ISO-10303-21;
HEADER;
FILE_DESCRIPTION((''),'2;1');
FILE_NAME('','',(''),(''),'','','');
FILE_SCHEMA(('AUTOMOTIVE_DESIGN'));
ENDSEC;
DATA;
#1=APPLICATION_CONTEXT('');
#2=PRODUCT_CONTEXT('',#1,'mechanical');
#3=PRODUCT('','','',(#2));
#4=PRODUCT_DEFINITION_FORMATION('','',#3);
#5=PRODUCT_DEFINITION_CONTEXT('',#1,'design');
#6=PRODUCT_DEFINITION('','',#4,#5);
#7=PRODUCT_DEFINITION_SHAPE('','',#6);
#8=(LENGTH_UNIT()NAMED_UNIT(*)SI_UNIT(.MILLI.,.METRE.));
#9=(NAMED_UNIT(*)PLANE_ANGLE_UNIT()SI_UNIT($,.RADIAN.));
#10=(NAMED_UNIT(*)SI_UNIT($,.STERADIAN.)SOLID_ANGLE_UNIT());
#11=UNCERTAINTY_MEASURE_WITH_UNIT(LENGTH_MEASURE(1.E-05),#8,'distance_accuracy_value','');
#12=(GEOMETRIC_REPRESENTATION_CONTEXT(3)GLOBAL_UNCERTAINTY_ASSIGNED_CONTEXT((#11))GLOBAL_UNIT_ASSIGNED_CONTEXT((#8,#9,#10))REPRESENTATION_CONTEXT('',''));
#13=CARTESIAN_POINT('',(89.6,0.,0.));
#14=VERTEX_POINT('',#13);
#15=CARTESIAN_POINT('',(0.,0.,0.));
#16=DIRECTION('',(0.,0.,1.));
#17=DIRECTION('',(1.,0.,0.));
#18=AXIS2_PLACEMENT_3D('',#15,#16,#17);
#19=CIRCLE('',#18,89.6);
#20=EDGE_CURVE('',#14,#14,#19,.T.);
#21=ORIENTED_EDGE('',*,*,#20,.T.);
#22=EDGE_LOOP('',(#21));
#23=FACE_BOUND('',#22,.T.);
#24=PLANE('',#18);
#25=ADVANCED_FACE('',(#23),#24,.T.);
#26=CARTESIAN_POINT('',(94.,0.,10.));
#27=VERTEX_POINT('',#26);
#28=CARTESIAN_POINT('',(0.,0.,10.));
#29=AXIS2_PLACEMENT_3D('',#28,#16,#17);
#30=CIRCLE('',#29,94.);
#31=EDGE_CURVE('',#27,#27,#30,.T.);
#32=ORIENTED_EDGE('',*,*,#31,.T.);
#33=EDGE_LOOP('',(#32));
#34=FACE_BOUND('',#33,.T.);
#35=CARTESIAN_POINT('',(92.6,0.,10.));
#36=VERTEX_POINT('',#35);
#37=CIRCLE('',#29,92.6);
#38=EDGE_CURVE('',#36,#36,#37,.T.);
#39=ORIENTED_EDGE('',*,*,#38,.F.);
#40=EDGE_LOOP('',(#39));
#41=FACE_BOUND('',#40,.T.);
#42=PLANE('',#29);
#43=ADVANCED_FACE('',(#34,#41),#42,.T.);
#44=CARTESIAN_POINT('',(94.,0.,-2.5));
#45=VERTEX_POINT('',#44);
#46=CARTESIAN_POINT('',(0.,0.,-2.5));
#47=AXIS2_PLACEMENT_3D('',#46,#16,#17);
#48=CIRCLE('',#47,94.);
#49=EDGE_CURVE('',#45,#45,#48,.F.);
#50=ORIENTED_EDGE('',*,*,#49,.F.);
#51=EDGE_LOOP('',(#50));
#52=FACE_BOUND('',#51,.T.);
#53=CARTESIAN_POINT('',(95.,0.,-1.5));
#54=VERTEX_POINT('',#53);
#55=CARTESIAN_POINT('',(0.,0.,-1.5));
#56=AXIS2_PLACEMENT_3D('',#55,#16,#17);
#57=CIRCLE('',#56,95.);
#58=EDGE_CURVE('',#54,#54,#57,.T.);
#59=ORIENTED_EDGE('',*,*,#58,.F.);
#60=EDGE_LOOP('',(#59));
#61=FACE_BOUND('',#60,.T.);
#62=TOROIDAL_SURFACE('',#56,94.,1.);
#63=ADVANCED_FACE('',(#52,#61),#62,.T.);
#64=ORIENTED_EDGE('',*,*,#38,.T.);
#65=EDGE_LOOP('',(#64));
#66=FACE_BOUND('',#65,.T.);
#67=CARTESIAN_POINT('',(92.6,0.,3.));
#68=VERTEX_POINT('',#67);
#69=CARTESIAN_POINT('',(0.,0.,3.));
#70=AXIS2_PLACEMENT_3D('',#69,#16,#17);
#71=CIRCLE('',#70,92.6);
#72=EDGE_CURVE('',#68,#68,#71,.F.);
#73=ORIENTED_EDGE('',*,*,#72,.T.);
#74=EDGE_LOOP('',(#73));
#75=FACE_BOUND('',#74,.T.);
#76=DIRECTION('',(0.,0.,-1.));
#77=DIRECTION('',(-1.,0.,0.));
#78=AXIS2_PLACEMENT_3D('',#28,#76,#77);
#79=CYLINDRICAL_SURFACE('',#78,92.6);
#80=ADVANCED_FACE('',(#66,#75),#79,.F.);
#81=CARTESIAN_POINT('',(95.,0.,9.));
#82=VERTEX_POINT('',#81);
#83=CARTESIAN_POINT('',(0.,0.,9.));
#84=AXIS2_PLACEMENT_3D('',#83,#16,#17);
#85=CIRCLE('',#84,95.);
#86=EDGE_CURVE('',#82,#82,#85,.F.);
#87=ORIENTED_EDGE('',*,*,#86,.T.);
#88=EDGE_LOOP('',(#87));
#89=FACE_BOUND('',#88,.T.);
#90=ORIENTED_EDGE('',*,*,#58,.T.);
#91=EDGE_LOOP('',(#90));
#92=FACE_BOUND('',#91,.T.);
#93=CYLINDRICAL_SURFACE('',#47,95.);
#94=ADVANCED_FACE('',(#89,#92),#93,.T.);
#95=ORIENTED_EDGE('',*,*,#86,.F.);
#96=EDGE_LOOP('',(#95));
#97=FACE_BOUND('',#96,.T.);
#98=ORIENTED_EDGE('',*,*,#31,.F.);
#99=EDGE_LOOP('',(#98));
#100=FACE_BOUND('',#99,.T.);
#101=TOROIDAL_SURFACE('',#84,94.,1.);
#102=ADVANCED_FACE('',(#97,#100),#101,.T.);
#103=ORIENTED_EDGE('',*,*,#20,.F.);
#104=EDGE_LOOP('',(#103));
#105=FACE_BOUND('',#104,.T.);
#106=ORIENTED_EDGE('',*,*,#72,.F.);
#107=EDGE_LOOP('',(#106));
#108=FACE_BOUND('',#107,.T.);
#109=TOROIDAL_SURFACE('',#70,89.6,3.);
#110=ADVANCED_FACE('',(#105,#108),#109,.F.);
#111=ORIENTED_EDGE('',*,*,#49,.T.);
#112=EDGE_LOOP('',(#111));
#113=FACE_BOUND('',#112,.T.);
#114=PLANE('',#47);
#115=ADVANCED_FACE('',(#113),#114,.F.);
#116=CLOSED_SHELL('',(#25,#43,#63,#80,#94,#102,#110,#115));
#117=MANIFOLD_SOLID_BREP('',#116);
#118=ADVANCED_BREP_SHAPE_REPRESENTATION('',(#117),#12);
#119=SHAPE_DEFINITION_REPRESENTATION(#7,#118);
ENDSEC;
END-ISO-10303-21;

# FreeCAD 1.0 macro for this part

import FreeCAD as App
import Part
import Sketcher
Q = App.Units.Quantity


def edges_at(feature, points):
    """Names of the edges that pass closest to the given points."""
    edges = feature.Shape.Edges
    near = lambda p: min(range(len(edges)), key=lambda i: edges[i].distToShape(Part.Vertex(*p))[0])
    return sorted({f"Edge{near(p) + 1}" for p in points})

doc = App.newDocument("Part")
body = doc.addObject("PartDesign::Body", "Body")

# Sketch on XY plane
sketch1 = body.newObject("Sketcher::SketchObject", "Sketch")
sketch1.AttachmentSupport = (doc.getObject("XY_Plane"), [""])
sketch1.MapMode = "FlatFace"
sketch1.addGeometry(Part.Circle(App.Vector(0, 0, 0), App.Vector(0, 0, 1), 95), False)
sketch1.addConstraint([
    Sketcher.Constraint("Coincident", 0, 3, -1, 1),
    Sketcher.Constraint("Diameter", 0, Q("190 mm")),
])
pad1 = body.newObject("PartDesign::Pad", "Pad")
pad1.Profile = sketch1
pad1.Length = 2.5
pad1.Reversed = True

# Sketch on XY plane
sketch2 = body.newObject("Sketcher::SketchObject", "Sketch001")
sketch2.AttachmentSupport = (doc.getObject("XY_Plane"), [""])
sketch2.MapMode = "FlatFace"
sketch2.AttachmentOffset = App.Placement(App.Vector(0, 0, 10), App.Rotation())
sketch2.addGeometry([
    Part.Circle(App.Vector(0, 0, 0), App.Vector(0, 0, 1), 95),
    Part.Circle(App.Vector(0, 0, 0), App.Vector(0, 0, 1), 93),
], False)
sketch2.addConstraint([
    Sketcher.Constraint("Coincident", 0, 3, -1, 1),
    Sketcher.Constraint("Coincident", 1, 3, -1, 1),
    Sketcher.Constraint("Diameter", 0, Q("190 mm")),
    Sketcher.Constraint("Diameter", 1, Q("185.2 mm")),
])
pad2 = body.newObject("PartDesign::Pad", "Pad001")
pad2.Profile = sketch2
pad2.Length = 10
pad2.Reversed = True
doc.recompute()

fillet = body.newObject("PartDesign::Fillet", "Fillet")
fillet.Base = (pad2, edges_at(pad2, [(-95, 0, -2.5)]))
fillet.Radius = 1
doc.recompute()

fillet2 = body.newObject("PartDesign::Fillet", "Fillet001")
fillet2.Base = (fillet, edges_at(fillet, [(-95, 0, 10)]))
fillet2.Radius = 1
doc.recompute()

fillet3 = body.newObject("PartDesign::Fillet", "Fillet002")
fillet3.Base = (fillet2, edges_at(fillet2, [(-92.6, 0, 0)]))
fillet3.Radius = 3

doc.recompute()
